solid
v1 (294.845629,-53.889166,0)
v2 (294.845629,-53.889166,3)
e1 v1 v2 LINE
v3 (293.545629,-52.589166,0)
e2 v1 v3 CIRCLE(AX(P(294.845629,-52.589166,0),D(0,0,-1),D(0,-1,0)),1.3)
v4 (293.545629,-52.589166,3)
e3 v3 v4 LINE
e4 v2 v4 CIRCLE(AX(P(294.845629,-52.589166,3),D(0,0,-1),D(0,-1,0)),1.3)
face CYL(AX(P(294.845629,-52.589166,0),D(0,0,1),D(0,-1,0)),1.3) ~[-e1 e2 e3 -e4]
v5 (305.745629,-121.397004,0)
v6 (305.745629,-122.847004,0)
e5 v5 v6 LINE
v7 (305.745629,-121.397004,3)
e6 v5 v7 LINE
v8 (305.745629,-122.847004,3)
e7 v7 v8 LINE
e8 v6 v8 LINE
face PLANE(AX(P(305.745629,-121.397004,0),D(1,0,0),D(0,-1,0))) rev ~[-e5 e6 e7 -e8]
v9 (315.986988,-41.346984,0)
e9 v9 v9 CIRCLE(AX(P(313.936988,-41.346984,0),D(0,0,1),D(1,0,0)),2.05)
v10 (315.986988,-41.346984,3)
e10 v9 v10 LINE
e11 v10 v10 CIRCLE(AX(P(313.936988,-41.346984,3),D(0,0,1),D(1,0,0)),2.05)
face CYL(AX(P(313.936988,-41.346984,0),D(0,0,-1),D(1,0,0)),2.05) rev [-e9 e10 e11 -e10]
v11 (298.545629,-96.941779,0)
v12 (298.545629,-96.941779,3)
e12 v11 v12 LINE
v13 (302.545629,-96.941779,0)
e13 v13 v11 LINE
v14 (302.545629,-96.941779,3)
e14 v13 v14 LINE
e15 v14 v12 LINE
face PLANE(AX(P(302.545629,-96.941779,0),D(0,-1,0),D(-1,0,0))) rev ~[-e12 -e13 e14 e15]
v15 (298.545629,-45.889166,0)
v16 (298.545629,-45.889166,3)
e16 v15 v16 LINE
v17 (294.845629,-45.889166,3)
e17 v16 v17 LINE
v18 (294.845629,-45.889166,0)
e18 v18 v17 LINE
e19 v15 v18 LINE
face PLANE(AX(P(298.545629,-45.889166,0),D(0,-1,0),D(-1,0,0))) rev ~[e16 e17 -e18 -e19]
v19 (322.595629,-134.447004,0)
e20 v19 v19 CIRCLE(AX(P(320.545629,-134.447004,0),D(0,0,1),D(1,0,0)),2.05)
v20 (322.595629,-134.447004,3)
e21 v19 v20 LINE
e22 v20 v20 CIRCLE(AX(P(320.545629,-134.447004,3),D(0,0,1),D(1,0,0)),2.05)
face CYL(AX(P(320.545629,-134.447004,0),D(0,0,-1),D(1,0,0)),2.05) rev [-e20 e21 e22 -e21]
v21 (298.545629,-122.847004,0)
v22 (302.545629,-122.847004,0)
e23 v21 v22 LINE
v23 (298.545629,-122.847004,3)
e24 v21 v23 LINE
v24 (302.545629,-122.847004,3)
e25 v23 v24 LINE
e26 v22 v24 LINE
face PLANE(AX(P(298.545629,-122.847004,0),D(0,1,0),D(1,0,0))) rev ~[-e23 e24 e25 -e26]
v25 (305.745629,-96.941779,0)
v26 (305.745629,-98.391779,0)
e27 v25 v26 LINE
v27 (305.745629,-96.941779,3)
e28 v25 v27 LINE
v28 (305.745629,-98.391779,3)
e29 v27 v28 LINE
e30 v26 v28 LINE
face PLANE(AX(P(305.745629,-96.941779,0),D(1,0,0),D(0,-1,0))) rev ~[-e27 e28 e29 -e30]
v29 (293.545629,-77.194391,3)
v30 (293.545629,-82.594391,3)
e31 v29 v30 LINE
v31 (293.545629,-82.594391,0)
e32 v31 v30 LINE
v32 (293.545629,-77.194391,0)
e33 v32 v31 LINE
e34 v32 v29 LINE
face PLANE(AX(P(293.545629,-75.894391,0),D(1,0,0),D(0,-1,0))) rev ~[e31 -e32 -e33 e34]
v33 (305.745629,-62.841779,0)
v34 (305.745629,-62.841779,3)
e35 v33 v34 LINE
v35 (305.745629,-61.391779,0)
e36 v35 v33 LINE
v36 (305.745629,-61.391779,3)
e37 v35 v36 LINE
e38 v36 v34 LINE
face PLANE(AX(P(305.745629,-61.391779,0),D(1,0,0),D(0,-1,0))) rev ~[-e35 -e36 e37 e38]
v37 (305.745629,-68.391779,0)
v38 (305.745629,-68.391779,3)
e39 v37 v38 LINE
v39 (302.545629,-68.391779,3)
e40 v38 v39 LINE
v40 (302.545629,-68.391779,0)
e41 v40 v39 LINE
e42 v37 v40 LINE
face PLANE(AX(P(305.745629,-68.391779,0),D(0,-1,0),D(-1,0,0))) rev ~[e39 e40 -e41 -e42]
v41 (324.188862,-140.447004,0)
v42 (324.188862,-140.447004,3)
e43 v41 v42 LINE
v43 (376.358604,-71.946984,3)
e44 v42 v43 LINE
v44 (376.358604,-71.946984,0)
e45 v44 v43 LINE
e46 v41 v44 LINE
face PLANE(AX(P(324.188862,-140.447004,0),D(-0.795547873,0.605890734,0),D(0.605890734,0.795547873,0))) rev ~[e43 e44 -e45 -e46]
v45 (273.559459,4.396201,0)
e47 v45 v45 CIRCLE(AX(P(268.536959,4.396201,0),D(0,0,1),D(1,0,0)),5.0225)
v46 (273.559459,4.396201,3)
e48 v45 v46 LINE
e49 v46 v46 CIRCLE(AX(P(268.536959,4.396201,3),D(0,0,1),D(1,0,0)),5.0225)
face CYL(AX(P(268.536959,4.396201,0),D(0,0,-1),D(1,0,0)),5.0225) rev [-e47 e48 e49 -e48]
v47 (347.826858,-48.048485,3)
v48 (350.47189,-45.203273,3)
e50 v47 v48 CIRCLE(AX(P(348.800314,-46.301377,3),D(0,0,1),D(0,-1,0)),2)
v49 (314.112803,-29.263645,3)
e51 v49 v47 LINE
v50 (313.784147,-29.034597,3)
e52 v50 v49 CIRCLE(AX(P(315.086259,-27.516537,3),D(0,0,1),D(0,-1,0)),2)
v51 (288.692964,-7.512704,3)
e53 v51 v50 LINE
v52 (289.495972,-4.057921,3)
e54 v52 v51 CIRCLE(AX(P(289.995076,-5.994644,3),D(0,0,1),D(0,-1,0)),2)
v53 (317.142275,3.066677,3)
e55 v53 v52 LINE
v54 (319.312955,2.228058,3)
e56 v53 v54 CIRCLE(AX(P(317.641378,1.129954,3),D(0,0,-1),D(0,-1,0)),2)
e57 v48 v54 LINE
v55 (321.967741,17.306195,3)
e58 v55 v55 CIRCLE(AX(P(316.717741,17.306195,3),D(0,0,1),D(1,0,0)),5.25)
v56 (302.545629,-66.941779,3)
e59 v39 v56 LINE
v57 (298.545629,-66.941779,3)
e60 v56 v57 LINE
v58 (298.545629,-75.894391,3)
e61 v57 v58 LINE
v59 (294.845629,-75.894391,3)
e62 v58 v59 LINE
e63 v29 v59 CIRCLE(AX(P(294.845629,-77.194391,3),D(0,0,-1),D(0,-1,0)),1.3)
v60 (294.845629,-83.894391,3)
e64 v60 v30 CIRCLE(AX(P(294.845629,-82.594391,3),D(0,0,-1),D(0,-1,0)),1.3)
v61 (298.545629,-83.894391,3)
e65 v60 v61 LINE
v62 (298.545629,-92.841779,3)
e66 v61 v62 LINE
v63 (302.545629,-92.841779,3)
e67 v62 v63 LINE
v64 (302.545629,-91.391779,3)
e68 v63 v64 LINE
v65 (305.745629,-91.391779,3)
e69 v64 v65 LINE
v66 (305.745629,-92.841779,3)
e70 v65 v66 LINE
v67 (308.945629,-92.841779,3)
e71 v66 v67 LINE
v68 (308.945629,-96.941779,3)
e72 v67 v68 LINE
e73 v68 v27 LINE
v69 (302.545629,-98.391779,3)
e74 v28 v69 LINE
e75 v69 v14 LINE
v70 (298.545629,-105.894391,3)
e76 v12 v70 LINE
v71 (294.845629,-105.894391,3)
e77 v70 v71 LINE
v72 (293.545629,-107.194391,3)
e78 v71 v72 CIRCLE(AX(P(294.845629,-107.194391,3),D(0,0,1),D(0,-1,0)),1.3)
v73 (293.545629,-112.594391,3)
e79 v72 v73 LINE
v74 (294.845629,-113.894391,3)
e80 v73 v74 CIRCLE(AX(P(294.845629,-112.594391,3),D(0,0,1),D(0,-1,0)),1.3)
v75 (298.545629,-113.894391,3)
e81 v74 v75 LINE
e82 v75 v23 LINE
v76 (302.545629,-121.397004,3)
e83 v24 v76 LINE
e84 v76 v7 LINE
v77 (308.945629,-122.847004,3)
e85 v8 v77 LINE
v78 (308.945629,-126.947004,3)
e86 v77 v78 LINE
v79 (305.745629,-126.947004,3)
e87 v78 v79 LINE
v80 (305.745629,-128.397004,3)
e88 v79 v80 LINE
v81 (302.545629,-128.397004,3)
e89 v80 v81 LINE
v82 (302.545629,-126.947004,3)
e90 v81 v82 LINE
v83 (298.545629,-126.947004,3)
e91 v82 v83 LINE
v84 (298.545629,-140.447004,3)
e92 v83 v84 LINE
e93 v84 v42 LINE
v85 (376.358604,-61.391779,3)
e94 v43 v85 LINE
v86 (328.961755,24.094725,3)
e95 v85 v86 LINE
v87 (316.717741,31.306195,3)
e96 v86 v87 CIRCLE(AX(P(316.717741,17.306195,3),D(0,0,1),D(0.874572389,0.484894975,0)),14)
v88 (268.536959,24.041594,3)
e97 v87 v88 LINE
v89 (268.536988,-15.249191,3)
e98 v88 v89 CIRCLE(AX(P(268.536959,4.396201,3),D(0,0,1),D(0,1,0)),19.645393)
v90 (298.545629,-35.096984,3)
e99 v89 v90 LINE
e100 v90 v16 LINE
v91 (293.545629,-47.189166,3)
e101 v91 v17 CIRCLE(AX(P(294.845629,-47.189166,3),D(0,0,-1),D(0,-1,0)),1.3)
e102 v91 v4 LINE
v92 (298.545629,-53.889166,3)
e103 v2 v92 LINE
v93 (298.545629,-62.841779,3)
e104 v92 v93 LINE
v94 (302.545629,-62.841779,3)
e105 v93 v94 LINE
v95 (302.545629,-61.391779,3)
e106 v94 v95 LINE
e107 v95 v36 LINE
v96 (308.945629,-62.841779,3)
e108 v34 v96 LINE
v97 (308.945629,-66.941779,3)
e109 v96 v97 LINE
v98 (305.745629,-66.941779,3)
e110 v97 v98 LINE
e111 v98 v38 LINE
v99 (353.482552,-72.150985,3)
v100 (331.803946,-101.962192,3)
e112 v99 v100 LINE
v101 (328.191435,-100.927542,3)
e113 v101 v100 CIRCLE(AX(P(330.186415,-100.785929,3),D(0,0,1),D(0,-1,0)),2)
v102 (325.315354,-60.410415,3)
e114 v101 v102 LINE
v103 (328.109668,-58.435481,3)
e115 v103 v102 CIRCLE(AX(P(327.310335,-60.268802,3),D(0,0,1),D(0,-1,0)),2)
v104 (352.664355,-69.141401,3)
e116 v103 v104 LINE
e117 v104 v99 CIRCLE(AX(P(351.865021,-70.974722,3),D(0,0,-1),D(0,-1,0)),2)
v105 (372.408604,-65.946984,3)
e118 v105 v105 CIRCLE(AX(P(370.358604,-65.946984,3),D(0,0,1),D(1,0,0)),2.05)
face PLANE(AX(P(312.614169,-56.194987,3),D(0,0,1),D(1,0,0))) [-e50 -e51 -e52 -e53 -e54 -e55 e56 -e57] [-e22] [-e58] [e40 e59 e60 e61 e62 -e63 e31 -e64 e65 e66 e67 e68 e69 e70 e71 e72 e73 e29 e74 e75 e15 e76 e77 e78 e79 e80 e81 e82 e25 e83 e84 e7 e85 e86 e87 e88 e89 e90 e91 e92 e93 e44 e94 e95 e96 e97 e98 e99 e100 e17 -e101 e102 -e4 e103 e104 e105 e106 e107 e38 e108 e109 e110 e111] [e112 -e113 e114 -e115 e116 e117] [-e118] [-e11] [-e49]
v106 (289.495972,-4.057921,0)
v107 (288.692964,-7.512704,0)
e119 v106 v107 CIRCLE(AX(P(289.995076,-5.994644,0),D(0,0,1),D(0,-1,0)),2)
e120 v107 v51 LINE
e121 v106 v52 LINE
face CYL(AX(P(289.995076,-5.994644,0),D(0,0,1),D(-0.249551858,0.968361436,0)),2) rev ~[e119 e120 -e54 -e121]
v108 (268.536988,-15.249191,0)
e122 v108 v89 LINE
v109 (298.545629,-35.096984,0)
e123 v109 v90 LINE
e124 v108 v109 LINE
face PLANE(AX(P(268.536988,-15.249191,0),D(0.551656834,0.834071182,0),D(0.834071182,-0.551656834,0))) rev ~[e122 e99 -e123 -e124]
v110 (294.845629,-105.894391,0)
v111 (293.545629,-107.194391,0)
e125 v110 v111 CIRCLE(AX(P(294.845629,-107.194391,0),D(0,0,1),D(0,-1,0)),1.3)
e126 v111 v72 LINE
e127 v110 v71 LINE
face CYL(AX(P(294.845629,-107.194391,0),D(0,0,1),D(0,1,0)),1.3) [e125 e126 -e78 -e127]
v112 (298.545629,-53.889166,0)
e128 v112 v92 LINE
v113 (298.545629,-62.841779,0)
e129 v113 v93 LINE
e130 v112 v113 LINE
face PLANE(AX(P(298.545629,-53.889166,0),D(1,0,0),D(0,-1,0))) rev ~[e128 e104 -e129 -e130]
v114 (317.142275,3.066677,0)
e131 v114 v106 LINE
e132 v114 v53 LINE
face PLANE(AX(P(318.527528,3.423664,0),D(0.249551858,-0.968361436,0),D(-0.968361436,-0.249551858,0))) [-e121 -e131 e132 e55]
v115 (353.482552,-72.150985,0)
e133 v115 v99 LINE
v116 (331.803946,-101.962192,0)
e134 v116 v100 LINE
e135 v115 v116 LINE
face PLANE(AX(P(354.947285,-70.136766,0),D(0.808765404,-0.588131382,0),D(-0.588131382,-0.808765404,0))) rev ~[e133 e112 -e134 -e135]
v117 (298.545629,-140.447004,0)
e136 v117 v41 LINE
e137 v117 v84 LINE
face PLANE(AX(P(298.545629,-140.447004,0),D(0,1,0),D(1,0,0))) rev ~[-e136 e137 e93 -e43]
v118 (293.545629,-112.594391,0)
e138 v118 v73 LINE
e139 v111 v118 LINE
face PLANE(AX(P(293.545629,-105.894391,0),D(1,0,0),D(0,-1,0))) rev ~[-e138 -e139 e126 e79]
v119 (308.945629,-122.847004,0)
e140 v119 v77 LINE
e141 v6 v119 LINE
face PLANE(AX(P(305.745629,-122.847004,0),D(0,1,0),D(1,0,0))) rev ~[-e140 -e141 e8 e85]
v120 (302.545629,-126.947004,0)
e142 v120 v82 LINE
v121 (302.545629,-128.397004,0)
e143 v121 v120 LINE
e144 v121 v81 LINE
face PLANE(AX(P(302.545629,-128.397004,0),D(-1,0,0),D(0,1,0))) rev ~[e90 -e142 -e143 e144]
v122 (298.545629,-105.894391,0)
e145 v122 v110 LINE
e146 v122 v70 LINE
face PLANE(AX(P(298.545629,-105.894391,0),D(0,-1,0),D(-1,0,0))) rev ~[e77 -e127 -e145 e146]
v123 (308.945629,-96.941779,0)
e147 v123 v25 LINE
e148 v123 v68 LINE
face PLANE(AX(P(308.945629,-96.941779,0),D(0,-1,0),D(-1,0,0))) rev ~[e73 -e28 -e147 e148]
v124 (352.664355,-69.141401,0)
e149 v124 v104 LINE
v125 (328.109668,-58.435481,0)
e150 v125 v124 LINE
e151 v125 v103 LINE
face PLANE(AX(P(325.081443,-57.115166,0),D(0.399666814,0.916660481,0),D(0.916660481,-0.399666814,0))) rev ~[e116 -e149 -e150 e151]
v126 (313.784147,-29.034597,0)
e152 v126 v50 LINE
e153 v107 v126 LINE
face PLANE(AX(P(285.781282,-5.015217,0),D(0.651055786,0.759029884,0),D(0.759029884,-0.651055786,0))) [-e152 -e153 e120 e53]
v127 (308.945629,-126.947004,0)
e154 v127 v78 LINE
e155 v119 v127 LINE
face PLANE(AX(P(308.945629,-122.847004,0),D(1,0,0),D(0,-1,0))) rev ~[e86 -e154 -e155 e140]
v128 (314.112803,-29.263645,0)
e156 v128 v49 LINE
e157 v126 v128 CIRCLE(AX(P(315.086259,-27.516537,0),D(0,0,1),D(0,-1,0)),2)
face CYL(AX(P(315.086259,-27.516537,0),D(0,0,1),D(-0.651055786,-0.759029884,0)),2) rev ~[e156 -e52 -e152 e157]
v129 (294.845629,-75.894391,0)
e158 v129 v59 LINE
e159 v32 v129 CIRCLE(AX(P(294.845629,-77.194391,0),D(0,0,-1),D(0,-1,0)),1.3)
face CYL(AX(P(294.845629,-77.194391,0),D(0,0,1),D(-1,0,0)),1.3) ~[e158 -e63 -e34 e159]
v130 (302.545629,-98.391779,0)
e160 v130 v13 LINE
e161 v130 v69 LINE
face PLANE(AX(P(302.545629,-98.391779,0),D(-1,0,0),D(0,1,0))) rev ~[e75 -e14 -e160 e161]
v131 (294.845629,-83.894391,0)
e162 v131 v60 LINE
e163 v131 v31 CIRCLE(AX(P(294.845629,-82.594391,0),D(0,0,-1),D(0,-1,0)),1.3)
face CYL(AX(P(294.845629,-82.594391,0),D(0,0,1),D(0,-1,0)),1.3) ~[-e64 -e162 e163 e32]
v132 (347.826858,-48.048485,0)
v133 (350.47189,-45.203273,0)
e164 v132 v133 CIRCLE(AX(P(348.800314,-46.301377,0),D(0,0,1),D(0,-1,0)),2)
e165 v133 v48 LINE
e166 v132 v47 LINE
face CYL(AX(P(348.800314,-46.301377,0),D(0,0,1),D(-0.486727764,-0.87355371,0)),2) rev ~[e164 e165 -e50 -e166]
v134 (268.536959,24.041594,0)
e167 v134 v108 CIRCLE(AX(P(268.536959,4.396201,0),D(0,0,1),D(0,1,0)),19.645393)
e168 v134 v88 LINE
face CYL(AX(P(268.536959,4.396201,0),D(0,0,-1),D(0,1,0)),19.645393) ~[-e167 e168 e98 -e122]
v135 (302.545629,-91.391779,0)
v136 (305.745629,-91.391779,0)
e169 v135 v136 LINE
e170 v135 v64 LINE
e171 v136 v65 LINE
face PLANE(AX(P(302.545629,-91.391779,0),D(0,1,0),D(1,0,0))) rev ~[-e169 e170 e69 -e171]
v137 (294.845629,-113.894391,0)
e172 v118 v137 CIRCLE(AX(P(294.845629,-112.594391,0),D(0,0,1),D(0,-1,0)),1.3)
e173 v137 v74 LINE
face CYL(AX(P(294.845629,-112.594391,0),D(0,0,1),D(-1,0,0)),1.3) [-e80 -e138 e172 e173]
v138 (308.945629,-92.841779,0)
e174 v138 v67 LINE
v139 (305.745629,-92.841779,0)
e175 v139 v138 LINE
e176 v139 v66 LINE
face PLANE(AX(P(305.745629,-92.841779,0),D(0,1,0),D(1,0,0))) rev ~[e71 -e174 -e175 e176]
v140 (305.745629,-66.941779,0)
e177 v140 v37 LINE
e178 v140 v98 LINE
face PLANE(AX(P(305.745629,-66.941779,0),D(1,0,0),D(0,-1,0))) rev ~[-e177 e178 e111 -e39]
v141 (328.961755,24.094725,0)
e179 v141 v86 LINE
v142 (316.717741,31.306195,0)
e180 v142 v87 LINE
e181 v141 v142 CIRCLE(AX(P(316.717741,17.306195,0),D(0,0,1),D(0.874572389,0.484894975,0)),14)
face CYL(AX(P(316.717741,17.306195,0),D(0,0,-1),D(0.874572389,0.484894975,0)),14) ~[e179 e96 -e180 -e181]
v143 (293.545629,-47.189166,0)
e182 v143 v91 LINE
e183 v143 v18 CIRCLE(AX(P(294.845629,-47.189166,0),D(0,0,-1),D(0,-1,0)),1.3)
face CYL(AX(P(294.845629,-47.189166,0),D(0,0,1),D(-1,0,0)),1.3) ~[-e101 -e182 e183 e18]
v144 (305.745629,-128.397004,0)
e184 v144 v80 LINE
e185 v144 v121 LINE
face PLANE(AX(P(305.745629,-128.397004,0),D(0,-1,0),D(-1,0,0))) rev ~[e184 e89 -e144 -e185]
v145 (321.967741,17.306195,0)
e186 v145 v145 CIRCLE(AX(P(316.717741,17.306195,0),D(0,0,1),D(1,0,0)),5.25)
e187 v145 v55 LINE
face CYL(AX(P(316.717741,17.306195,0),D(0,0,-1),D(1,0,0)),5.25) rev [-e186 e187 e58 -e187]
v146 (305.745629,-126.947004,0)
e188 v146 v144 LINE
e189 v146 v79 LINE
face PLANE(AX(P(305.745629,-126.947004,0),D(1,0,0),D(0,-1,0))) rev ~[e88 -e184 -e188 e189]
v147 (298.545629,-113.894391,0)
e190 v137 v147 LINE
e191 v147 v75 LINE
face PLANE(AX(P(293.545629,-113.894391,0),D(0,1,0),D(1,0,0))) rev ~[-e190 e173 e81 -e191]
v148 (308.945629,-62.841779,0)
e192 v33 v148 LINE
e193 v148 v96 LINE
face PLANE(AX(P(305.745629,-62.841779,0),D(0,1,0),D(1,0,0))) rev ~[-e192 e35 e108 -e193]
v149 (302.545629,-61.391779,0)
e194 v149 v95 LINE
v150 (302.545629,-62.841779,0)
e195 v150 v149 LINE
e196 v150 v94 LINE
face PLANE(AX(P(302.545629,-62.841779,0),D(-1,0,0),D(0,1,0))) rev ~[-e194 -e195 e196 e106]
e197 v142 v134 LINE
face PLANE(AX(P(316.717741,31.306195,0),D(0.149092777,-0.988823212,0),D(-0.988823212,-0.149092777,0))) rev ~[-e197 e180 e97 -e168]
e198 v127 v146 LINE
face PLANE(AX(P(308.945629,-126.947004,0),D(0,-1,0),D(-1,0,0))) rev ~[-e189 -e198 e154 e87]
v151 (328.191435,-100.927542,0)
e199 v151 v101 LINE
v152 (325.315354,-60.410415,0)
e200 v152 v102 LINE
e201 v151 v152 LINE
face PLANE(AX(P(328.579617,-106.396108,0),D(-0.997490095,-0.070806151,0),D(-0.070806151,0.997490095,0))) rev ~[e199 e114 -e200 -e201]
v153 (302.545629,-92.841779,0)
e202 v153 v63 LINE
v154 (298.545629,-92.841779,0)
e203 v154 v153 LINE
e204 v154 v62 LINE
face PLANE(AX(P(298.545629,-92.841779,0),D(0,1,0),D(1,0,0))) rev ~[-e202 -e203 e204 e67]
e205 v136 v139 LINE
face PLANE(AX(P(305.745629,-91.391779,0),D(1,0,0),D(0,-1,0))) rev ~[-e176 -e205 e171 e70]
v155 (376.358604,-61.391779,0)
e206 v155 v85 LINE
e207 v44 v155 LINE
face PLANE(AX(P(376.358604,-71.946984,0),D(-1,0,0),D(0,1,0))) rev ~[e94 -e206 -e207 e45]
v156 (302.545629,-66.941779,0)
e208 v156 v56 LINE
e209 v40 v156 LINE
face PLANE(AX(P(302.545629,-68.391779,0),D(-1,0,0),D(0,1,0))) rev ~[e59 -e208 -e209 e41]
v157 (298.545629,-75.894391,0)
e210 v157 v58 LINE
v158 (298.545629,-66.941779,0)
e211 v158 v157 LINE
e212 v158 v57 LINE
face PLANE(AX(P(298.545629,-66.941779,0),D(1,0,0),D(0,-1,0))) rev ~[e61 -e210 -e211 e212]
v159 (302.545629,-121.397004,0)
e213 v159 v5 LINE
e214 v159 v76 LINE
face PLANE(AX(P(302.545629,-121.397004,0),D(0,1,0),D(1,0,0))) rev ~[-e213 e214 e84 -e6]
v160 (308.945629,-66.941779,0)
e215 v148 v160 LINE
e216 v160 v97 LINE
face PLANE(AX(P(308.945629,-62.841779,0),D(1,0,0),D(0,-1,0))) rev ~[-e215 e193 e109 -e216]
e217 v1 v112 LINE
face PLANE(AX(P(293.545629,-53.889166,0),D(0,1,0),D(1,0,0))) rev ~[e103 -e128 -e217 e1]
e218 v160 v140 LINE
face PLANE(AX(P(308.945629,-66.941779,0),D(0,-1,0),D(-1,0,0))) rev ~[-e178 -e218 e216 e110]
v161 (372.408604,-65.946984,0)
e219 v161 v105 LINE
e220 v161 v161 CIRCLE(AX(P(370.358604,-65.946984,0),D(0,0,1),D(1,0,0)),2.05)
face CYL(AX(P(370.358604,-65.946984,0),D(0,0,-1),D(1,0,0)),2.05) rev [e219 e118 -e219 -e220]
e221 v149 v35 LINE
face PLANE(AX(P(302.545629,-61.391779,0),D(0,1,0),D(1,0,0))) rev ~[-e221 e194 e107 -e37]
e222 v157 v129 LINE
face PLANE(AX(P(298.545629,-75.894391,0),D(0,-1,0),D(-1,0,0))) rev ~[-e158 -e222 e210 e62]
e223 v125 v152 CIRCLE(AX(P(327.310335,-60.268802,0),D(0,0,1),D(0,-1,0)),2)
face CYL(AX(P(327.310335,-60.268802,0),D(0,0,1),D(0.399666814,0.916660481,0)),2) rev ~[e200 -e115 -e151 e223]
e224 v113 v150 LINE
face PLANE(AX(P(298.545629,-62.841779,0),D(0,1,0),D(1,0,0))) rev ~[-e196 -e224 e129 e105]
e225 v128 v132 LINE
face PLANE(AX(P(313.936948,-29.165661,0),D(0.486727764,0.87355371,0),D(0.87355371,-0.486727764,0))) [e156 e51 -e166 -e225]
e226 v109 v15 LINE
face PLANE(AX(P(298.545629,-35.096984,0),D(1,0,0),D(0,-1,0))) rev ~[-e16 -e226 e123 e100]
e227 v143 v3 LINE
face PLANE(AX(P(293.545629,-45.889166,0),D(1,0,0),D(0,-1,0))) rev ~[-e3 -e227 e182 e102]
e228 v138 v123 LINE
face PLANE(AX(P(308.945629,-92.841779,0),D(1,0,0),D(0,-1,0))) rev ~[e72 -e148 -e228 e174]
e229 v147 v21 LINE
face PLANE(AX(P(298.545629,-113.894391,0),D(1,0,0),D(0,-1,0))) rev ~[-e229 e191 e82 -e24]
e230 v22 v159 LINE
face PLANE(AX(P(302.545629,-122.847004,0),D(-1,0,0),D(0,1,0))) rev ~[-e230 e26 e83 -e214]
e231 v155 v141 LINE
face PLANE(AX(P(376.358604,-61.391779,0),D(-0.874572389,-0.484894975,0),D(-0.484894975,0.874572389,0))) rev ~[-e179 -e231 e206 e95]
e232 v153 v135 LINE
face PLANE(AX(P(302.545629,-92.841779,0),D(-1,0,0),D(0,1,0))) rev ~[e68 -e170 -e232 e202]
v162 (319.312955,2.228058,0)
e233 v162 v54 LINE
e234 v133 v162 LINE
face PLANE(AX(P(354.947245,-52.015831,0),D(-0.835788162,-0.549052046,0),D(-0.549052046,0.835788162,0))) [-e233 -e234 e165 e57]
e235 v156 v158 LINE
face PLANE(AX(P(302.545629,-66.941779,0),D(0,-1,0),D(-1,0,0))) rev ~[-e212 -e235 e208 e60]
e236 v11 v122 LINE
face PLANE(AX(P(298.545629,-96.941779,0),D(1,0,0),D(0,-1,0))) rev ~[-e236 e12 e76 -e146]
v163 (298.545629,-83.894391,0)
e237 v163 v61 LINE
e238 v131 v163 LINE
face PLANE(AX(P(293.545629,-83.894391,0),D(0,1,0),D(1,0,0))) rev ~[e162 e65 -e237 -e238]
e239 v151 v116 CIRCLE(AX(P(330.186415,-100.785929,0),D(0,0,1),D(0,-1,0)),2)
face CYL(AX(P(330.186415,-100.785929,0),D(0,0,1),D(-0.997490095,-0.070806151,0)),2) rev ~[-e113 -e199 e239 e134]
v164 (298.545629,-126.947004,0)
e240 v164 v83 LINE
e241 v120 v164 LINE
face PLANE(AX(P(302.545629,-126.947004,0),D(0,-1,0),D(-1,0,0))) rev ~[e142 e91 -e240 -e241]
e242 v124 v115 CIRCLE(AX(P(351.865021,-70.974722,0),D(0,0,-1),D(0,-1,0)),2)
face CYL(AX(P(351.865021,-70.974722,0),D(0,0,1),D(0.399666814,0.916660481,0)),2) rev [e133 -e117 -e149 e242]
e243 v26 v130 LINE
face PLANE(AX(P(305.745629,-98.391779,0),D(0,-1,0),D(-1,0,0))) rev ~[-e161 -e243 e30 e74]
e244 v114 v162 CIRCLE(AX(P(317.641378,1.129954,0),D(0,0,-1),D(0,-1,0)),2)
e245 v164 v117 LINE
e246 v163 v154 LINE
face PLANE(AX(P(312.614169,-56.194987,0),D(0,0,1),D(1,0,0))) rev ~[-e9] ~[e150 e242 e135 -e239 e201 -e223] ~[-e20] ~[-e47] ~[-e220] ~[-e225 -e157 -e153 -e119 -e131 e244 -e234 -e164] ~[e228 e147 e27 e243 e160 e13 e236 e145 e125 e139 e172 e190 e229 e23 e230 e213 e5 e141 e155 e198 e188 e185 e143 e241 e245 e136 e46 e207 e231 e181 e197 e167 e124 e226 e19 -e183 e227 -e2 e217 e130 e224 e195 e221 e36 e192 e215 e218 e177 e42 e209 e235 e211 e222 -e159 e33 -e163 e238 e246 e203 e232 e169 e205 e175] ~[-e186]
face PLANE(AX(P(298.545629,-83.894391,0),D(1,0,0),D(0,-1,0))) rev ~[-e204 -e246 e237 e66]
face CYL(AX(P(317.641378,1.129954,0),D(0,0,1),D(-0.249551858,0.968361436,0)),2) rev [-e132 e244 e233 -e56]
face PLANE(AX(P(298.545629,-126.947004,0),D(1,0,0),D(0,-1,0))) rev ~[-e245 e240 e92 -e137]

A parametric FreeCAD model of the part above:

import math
import FreeCAD as App
import Part
import Sketcher
Q = App.Units.Quantity


def edges_at(feature, points):
    """Names of the edges that pass closest to the given points."""
    edges = feature.Shape.Edges
    near = lambda p: min(range(len(edges)), key=lambda i: edges[i].distToShape(Part.Vertex(*p))[0])
    return sorted({f"Edge{near(p) + 1}" for p in points})

doc = App.newDocument("Part")
body = doc.addObject("PartDesign::Body", "Body")

# Sketch on XY plane
sketch1 = body.newObject("Sketcher::SketchObject", "Sketch")
sketch1.AttachmentSupport = (doc.getObject("XY_Plane"), [""])
sketch1.MapMode = "FlatFace"
sketch1.addGeometry(Part.LineSegment(App.Vector(298.5, -83.9, 0), App.Vector(298.5, -92.8, 0)), False)
sketch1.addGeometry(Part.LineSegment(App.Vector(298.5, -92.8, 0), App.Vector(302.5, -92.8, 0)), False)
sketch1.addGeometry(Part.LineSegment(App.Vector(302.5, -92.8, 0), App.Vector(302.5, -91.4, 0)), False)
sketch1.addGeometry(Part.LineSegment(App.Vector(302.5, -91.4, 0), App.Vector(305.7, -91.4, 0)), False)
sketch1.addGeometry(Part.LineSegment(App.Vector(305.7, -91.4, 0), App.Vector(305.7, -92.8, 0)), False)
sketch1.addGeometry(Part.LineSegment(App.Vector(305.7, -92.8, 0), App.Vector(308.9, -92.8, 0)), False)
sketch1.addGeometry(Part.LineSegment(App.Vector(308.9, -92.8, 0), App.Vector(308.9, -96.9, 0)), False)
sketch1.addGeometry(Part.LineSegment(App.Vector(308.9, -96.9, 0), App.Vector(305.7, -96.9, 0)), False)
sketch1.addGeometry(Part.LineSegment(App.Vector(305.7, -96.9, 0), App.Vector(305.7, -98.4, 0)), False)
sketch1.addGeometry(Part.LineSegment(App.Vector(305.7, -98.4, 0), App.Vector(302.5, -98.4, 0)), False)
sketch1.addGeometry(Part.LineSegment(App.Vector(302.5, -98.4, 0), App.Vector(302.5, -96.9, 0)), False)
sketch1.addGeometry(Part.LineSegment(App.Vector(302.5, -96.9, 0), App.Vector(298.5, -96.9, 0)), False)
sketch1.addGeometry(Part.LineSegment(App.Vector(298.5, -96.9, 0), App.Vector(298.5, -105.9, 0)), False)
sketch1.addGeometry(Part.LineSegment(App.Vector(298.5, -105.9, 0), App.Vector(293.5, -105.9, 0)), False)
sketch1.addGeometry(Part.LineSegment(App.Vector(293.5, -105.9, 0), App.Vector(293.5, -113.9, 0)), False)
sketch1.addGeometry(Part.LineSegment(App.Vector(293.5, -113.9, 0), App.Vector(298.5, -113.9, 0)), False)
sketch1.addGeometry(Part.LineSegment(App.Vector(298.5, -113.9, 0), App.Vector(298.5, -122.8, 0)), False)
sketch1.addGeometry(Part.LineSegment(App.Vector(298.5, -122.8, 0), App.Vector(302.5, -122.8, 0)), False)
sketch1.addGeometry(Part.LineSegment(App.Vector(302.5, -122.8, 0), App.Vector(302.5, -121.4, 0)), False)
sketch1.addGeometry(Part.LineSegment(App.Vector(302.5, -121.4, 0), App.Vector(305.7, -121.4, 0)), False)
sketch1.addGeometry(Part.LineSegment(App.Vector(305.7, -121.4, 0), App.Vector(305.7, -122.8, 0)), False)
sketch1.addGeometry(Part.LineSegment(App.Vector(305.7, -122.8, 0), App.Vector(308.9, -122.8, 0)), False)
sketch1.addGeometry(Part.LineSegment(App.Vector(308.9, -122.8, 0), App.Vector(308.9, -126.9, 0)), False)
sketch1.addGeometry(Part.LineSegment(App.Vector(308.9, -126.9, 0), App.Vector(305.7, -126.9, 0)), False)
sketch1.addGeometry(Part.LineSegment(App.Vector(305.7, -126.9, 0), App.Vector(305.7, -128.4, 0)), False)
sketch1.addGeometry(Part.LineSegment(App.Vector(305.7, -128.4, 0), App.Vector(302.5, -128.4, 0)), False)
sketch1.addGeometry(Part.LineSegment(App.Vector(302.5, -128.4, 0), App.Vector(302.5, -126.9, 0)), False)
sketch1.addGeometry(Part.LineSegment(App.Vector(302.5, -126.9, 0), App.Vector(298.5, -126.9, 0)), False)
sketch1.addGeometry(Part.LineSegment(App.Vector(298.5, -126.9, 0), App.Vector(298.5, -140.4, 0)), False)
sketch1.addGeometry(Part.LineSegment(App.Vector(298.5, -140.4, 0), App.Vector(324.2, -140.4, 0)), False)
sketch1.addGeometry(Part.LineSegment(App.Vector(324.2, -140.4, 0), App.Vector(376.4, -71.9, 0)), False)
sketch1.addGeometry(Part.LineSegment(App.Vector(376.4, -71.9, 0), App.Vector(376.4, -61.4, 0)), False)
sketch1.addGeometry(Part.LineSegment(App.Vector(376.4, -61.4, 0), App.Vector(329, 24.1, 0)), False)
sketch1.addGeometry(Part.ArcOfCircle(Part.Circle(App.Vector(316.7, 17.3, 0), App.Vector(0, 0, 1), 14), math.radians(29), math.radians(90)), False)
sketch1.addGeometry(Part.LineSegment(App.Vector(316.7, 31.3, 0), App.Vector(268.5, 24, 0)), False)
sketch1.addGeometry(Part.ArcOfCircle(Part.Circle(App.Vector(268.5, 4.4, 0), App.Vector(0, 0, 1), 19.6), math.radians(90), math.radians(270)), False)
sketch1.addGeometry(Part.LineSegment(App.Vector(268.5, -15.2, 0), App.Vector(298.5, -35.1, 0)), False)
sketch1.addGeometry(Part.LineSegment(App.Vector(298.5, -35.1, 0), App.Vector(298.5, -45.9, 0)), False)
sketch1.addGeometry(Part.LineSegment(App.Vector(298.5, -45.9, 0), App.Vector(293.5, -45.9, 0)), False)
sketch1.addGeometry(Part.LineSegment(App.Vector(293.5, -45.9, 0), App.Vector(293.5, -53.9, 0)), False)
sketch1.addGeometry(Part.LineSegment(App.Vector(293.5, -53.9, 0), App.Vector(298.5, -53.9, 0)), False)
sketch1.addGeometry(Part.LineSegment(App.Vector(298.5, -53.9, 0), App.Vector(298.5, -62.8, 0)), False)
sketch1.addGeometry(Part.LineSegment(App.Vector(298.5, -62.8, 0), App.Vector(302.5, -62.8, 0)), False)
sketch1.addGeometry(Part.LineSegment(App.Vector(302.5, -62.8, 0), App.Vector(302.5, -61.4, 0)), False)
sketch1.addGeometry(Part.LineSegment(App.Vector(302.5, -61.4, 0), App.Vector(305.7, -61.4, 0)), False)
sketch1.addGeometry(Part.LineSegment(App.Vector(305.7, -61.4, 0), App.Vector(305.7, -62.8, 0)), False)
sketch1.addGeometry(Part.LineSegment(App.Vector(305.7, -62.8, 0), App.Vector(308.9, -62.8, 0)), False)
sketch1.addGeometry(Part.LineSegment(App.Vector(308.9, -62.8, 0), App.Vector(308.9, -66.9, 0)), False)
sketch1.addGeometry(Part.LineSegment(App.Vector(308.9, -66.9, 0), App.Vector(305.7, -66.9, 0)), False)
sketch1.addGeometry(Part.LineSegment(App.Vector(305.7, -66.9, 0), App.Vector(305.7, -68.4, 0)), False)
sketch1.addGeometry(Part.LineSegment(App.Vector(305.7, -68.4, 0), App.Vector(302.5, -68.4, 0)), False)
sketch1.addGeometry(Part.LineSegment(App.Vector(302.5, -68.4, 0), App.Vector(302.5, -66.9, 0)), False)
sketch1.addGeometry(Part.LineSegment(App.Vector(302.5, -66.9, 0), App.Vector(298.5, -66.9, 0)), False)
sketch1.addGeometry(Part.LineSegment(App.Vector(298.5, -66.9, 0), App.Vector(298.5, -75.9, 0)), False)
sketch1.addGeometry(Part.LineSegment(App.Vector(298.5, -75.9, 0), App.Vector(293.5, -75.9, 0)), False)
sketch1.addGeometry(Part.LineSegment(App.Vector(293.5, -75.9, 0), App.Vector(293.5, -83.9, 0)), False)
sketch1.addGeometry(Part.LineSegment(App.Vector(293.5, -83.9, 0), App.Vector(298.5, -83.9, 0)), False)
sketch1.addGeometry(Part.Circle(App.Vector(320.5, -134.4, 0), App.Vector(0, 0, 1), 2), False)
sketch1.addGeometry(Part.LineSegment(App.Vector(325.1, -57.1, 0), App.Vector(354.9, -70.1, 0)), False)
sketch1.addGeometry(Part.LineSegment(App.Vector(354.9, -70.1, 0), App.Vector(328.6, -106.4, 0)), False)
sketch1.addGeometry(Part.LineSegment(App.Vector(328.6, -106.4, 0), App.Vector(325.1, -57.1, 0)), False)
sketch1.addGeometry(Part.Circle(App.Vector(370.4, -65.9, 0), App.Vector(0, 0, 1), 2), False)
sketch1.addGeometry(Part.Circle(App.Vector(313.9, -41.3, 0), App.Vector(0, 0, 1), 2), False)
sketch1.addGeometry(Part.Circle(App.Vector(268.5, 4.4, 0), App.Vector(0, 0, 1), 5), False)
sketch1.addGeometry(Part.Circle(App.Vector(316.7, 17.3, 0), App.Vector(0, 0, 1), 5.2), False)
sketch1.addGeometry(Part.LineSegment(App.Vector(285.8, -5, 0), App.Vector(318.5, 3.4, 0)), False)
sketch1.addGeometry(Part.LineSegment(App.Vector(318.5, 3.4, 0), App.Vector(354.9, -52, 0)), False)
sketch1.addGeometry(Part.LineSegment(App.Vector(354.9, -52, 0), App.Vector(313.9, -29.2, 0)), False)
sketch1.addGeometry(Part.LineSegment(App.Vector(313.9, -29.2, 0), App.Vector(285.8, -5, 0)), False)
sketch1.addConstraint(Sketcher.Constraint("Coincident", 0, 2, 1, 1))
sketch1.addConstraint(Sketcher.Constraint("Coincident", 1, 2, 2, 1))
sketch1.addConstraint(Sketcher.Constraint("Coincident", 2, 2, 3, 1))
sketch1.addConstraint(Sketcher.Constraint("Coincident", 3, 2, 4, 1))
sketch1.addConstraint(Sketcher.Constraint("Coincident", 4, 2, 5, 1))
sketch1.addConstraint(Sketcher.Constraint("Coincident", 5, 2, 6, 1))
sketch1.addConstraint(Sketcher.Constraint("Coincident", 6, 2, 7, 1))
sketch1.addConstraint(Sketcher.Constraint("Coincident", 7, 2, 8, 1))
sketch1.addConstraint(Sketcher.Constraint("Coincident", 8, 2, 9, 1))
sketch1.addConstraint(Sketcher.Constraint("Coincident", 9, 2, 10, 1))
sketch1.addConstraint(Sketcher.Constraint("Coincident", 10, 2, 11, 1))
sketch1.addConstraint(Sketcher.Constraint("Coincident", 11, 2, 12, 1))
sketch1.addConstraint(Sketcher.Constraint("Coincident", 12, 2, 13, 1))
sketch1.addConstraint(Sketcher.Constraint("Coincident", 13, 2, 14, 1))
sketch1.addConstraint(Sketcher.Constraint("Coincident", 14, 2, 15, 1))
sketch1.addConstraint(Sketcher.Constraint("Coincident", 15, 2, 16, 1))
sketch1.addConstraint(Sketcher.Constraint("Coincident", 16, 2, 17, 1))
sketch1.addConstraint(Sketcher.Constraint("Coincident", 17, 2, 18, 1))
sketch1.addConstraint(Sketcher.Constraint("Coincident", 18, 2, 19, 1))
sketch1.addConstraint(Sketcher.Constraint("Coincident", 19, 2, 20, 1))
sketch1.addConstraint(Sketcher.Constraint("Coincident", 20, 2, 21, 1))
sketch1.addConstraint(Sketcher.Constraint("Coincident", 21, 2, 22, 1))
sketch1.addConstraint(Sketcher.Constraint("Coincident", 22, 2, 23, 1))
sketch1.addConstraint(Sketcher.Constraint("Coincident", 23, 2, 24, 1))
sketch1.addConstraint(Sketcher.Constraint("Coincident", 24, 2, 25, 1))
sketch1.addConstraint(Sketcher.Constraint("Coincident", 25, 2, 26, 1))
sketch1.addConstraint(Sketcher.Constraint("Coincident", 26, 2, 27, 1))
sketch1.addConstraint(Sketcher.Constraint("Coincident", 27, 2, 28, 1))
sketch1.addConstraint(Sketcher.Constraint("Coincident", 28, 2, 29, 1))
sketch1.addConstraint(Sketcher.Constraint("Coincident", 29, 2, 30, 1))
sketch1.addConstraint(Sketcher.Constraint("Coincident", 30, 2, 31, 1))
sketch1.addConstraint(Sketcher.Constraint("Coincident", 31, 2, 32, 1))
sketch1.addConstraint(Sketcher.Constraint("Tangent", 32, 2, 33, 1))
sketch1.addConstraint(Sketcher.Constraint("Coincident", 33, 2, 34, 1))
sketch1.addConstraint(Sketcher.Constraint("Coincident", 34, 2, 35, 1))
sketch1.addConstraint(Sketcher.Constraint("Coincident", 35, 2, 36, 1))
sketch1.addConstraint(Sketcher.Constraint("Coincident", 36, 2, 37, 1))
sketch1.addConstraint(Sketcher.Constraint("Coincident", 37, 2, 38, 1))
sketch1.addConstraint(Sketcher.Constraint("Coincident", 38, 2, 39, 1))
sketch1.addConstraint(Sketcher.Constraint("Coincident", 39, 2, 40, 1))
sketch1.addConstraint(Sketcher.Constraint("Coincident", 40, 2, 41, 1))
sketch1.addConstraint(Sketcher.Constraint("Coincident", 41, 2, 42, 1))
sketch1.addConstraint(Sketcher.Constraint("Coincident", 42, 2, 43, 1))
sketch1.addConstraint(Sketcher.Constraint("Coincident", 43, 2, 44, 1))
sketch1.addConstraint(Sketcher.Constraint("Coincident", 44, 2, 45, 1))
sketch1.addConstraint(Sketcher.Constraint("Coincident", 45, 2, 46, 1))
sketch1.addConstraint(Sketcher.Constraint("Coincident", 46, 2, 47, 1))
sketch1.addConstraint(Sketcher.Constraint("Coincident", 47, 2, 48, 1))
sketch1.addConstraint(Sketcher.Constraint("Coincident", 48, 2, 49, 1))
sketch1.addConstraint(Sketcher.Constraint("Coincident", 49, 2, 50, 1))
sketch1.addConstraint(Sketcher.Constraint("Coincident", 50, 2, 51, 1))
sketch1.addConstraint(Sketcher.Constraint("Coincident", 51, 2, 52, 1))
sketch1.addConstraint(Sketcher.Constraint("Coincident", 52, 2, 53, 1))
sketch1.addConstraint(Sketcher.Constraint("Coincident", 53, 2, 54, 1))
sketch1.addConstraint(Sketcher.Constraint("Coincident", 54, 2, 55, 1))
sketch1.addConstraint(Sketcher.Constraint("Coincident", 55, 2, 56, 1))
sketch1.addConstraint(Sketcher.Constraint("Coincident", 56, 2, 0, 1))
sketch1.addConstraint(Sketcher.Constraint("Coincident", 58, 2, 59, 1))
sketch1.addConstraint(Sketcher.Constraint("Coincident", 59, 2, 60, 1))
sketch1.addConstraint(Sketcher.Constraint("Coincident", 60, 2, 58, 1))
sketch1.addConstraint(Sketcher.Constraint("Coincident", 65, 2, 66, 1))
sketch1.addConstraint(Sketcher.Constraint("Coincident", 66, 2, 67, 1))
sketch1.addConstraint(Sketcher.Constraint("Coincident", 67, 2, 68, 1))
sketch1.addConstraint(Sketcher.Constraint("Coincident", 68, 2, 65, 1))
sketch1.addConstraint(Sketcher.Constraint("Vertical", 0))
sketch1.addConstraint(Sketcher.Constraint("Horizontal", 1))
sketch1.addConstraint(Sketcher.Constraint("Vertical", 2))
sketch1.addConstraint(Sketcher.Constraint("Horizontal", 3))
sketch1.addConstraint(Sketcher.Constraint("Vertical", 4))
sketch1.addConstraint(Sketcher.Constraint("Horizontal", 5))
sketch1.addConstraint(Sketcher.Constraint("Vertical", 6))
sketch1.addConstraint(Sketcher.Constraint("Horizontal", 7))
sketch1.addConstraint(Sketcher.Constraint("Vertical", 8))
sketch1.addConstraint(Sketcher.Constraint("Horizontal", 9))
sketch1.addConstraint(Sketcher.Constraint("Vertical", 10))
sketch1.addConstraint(Sketcher.Constraint("Horizontal", 11))
sketch1.addConstraint(Sketcher.Constraint("Vertical", 12))
sketch1.addConstraint(Sketcher.Constraint("Horizontal", 13))
sketch1.addConstraint(Sketcher.Constraint("Vertical", 14))
sketch1.addConstraint(Sketcher.Constraint("Horizontal", 15))
sketch1.addConstraint(Sketcher.Constraint("Vertical", 16))
sketch1.addConstraint(Sketcher.Constraint("Horizontal", 17))
sketch1.addConstraint(Sketcher.Constraint("Vertical", 18))
sketch1.addConstraint(Sketcher.Constraint("Horizontal", 19))
sketch1.addConstraint(Sketcher.Constraint("Vertical", 20))
sketch1.addConstraint(Sketcher.Constraint("Horizontal", 21))
sketch1.addConstraint(Sketcher.Constraint("Vertical", 22))
sketch1.addConstraint(Sketcher.Constraint("Horizontal", 23))
sketch1.addConstraint(Sketcher.Constraint("Vertical", 24))
sketch1.addConstraint(Sketcher.Constraint("Horizontal", 25))
sketch1.addConstraint(Sketcher.Constraint("Vertical", 26))
sketch1.addConstraint(Sketcher.Constraint("Horizontal", 27))
sketch1.addConstraint(Sketcher.Constraint("Vertical", 28))
sketch1.addConstraint(Sketcher.Constraint("Horizontal", 29))
sketch1.addConstraint(Sketcher.Constraint("Vertical", 31))
sketch1.addConstraint(Sketcher.Constraint("Vertical", 37))
sketch1.addConstraint(Sketcher.Constraint("Horizontal", 38))
sketch1.addConstraint(Sketcher.Constraint("Vertical", 39))
sketch1.addConstraint(Sketcher.Constraint("Horizontal", 40))
sketch1.addConstraint(Sketcher.Constraint("Vertical", 41))
sketch1.addConstraint(Sketcher.Constraint("Horizontal", 42))
sketch1.addConstraint(Sketcher.Constraint("Vertical", 43))
sketch1.addConstraint(Sketcher.Constraint("Horizontal", 44))
sketch1.addConstraint(Sketcher.Constraint("Vertical", 45))
sketch1.addConstraint(Sketcher.Constraint("Horizontal", 46))
sketch1.addConstraint(Sketcher.Constraint("Vertical", 47))
sketch1.addConstraint(Sketcher.Constraint("Horizontal", 48))
sketch1.addConstraint(Sketcher.Constraint("Vertical", 49))
sketch1.addConstraint(Sketcher.Constraint("Horizontal", 50))
sketch1.addConstraint(Sketcher.Constraint("Vertical", 51))
sketch1.addConstraint(Sketcher.Constraint("Horizontal", 52))
sketch1.addConstraint(Sketcher.Constraint("Vertical", 53))
sketch1.addConstraint(Sketcher.Constraint("Horizontal", 54))
sketch1.addConstraint(Sketcher.Constraint("Vertical", 55))
sketch1.addConstraint(Sketcher.Constraint("Horizontal", 56))
sketch1.addConstraint(Sketcher.Constraint("Coincident", 63, 3, 35, 3))
sketch1.addConstraint(Sketcher.Constraint("Coincident", 64, 3, 33, 3))
sketch1.addConstraint(Sketcher.Constraint("Equal", 57, 61))
sketch1.addConstraint(Sketcher.Constraint("Equal", 61, 62))
sketch1.addConstraint(Sketcher.Constraint("Horizontal", 1, 2, 4, 2))
sketch1.addConstraint(Sketcher.Constraint("Horizontal", 7, 2, 10, 2))
sketch1.addConstraint(Sketcher.Constraint("Horizontal", 17, 2, 20, 2))
sketch1.addConstraint(Sketcher.Constraint("Horizontal", 23, 2, 26, 2))
sketch1.addConstraint(Sketcher.Constraint("Horizontal", 31, 2, 43, 2))
sketch1.addConstraint(Sketcher.Constraint("Horizontal", 42, 2, 45, 2))
sketch1.addConstraint(Sketcher.Constraint("Horizontal", 48, 2, 51, 2))
sketch1.addConstraint(Sketcher.Constraint("Vertical", 4, 2, 7, 2))
sketch1.addConstraint(Sketcher.Constraint("Vertical", 2, 2, 9, 2))
sketch1.addConstraint(Sketcher.Constraint("Vertical", 0, 2, 11, 2))
sketch1.addConstraint(Sketcher.Constraint("Vertical", 12, 2, 15, 2))
sketch1.addConstraint(Sketcher.Constraint("Vertical", 10, 2, 17, 2))
sketch1.addConstraint(Sketcher.Constraint("Vertical", 8, 2, 19, 2))
sketch1.addConstraint(Sketcher.Constraint("Vertical", 6, 2, 21, 2))
sketch1.addConstraint(Sketcher.Constraint("Vertical", 20, 2, 23, 2))
sketch1.addConstraint(Sketcher.Constraint("Vertical", 18, 2, 25, 2))
sketch1.addConstraint(Sketcher.Constraint("Vertical", 16, 2, 27, 2))
sketch1.addConstraint(Sketcher.Constraint("Vertical", 64, 3, 33, 2))
sketch1.addConstraint(Sketcher.Constraint("Vertical", 63, 3, 34, 2))
sketch1.addConstraint(Sketcher.Constraint("Vertical", 28, 2, 36, 2))
sketch1.addConstraint(Sketcher.Constraint("Vertical", 14, 2, 38, 2))
sketch1.addConstraint(Sketcher.Constraint("Vertical", 37, 2, 40, 2))
sketch1.addConstraint(Sketcher.Constraint("Vertical", 26, 2, 42, 2))
sketch1.addConstraint(Sketcher.Constraint("Vertical", 24, 2, 44, 2))
sketch1.addConstraint(Sketcher.Constraint("Vertical", 22, 2, 46, 2))
sketch1.addConstraint(Sketcher.Constraint("Vertical", 45, 2, 48, 2))
sketch1.addConstraint(Sketcher.Constraint("Vertical", 43, 2, 50, 2))
sketch1.addConstraint(Sketcher.Constraint("Vertical", 41, 2, 52, 2))
sketch1.addConstraint(Sketcher.Constraint("Vertical", 39, 2, 54, 2))
sketch1.addConstraint(Sketcher.Constraint("Equal", 3, 5))
sketch1.addConstraint(Sketcher.Constraint("Equal", 4, 8))
sketch1.addConstraint(Sketcher.Constraint("Equal", 12, 16))
sketch1.addConstraint(Sketcher.Constraint("Equal", 10, 18))
sketch1.addConstraint(Sketcher.Constraint("Equal", 6, 22))
sketch1.addConstraint(Sketcher.Constraint("Equal", 20, 24))
sketch1.addConstraint(Sketcher.Constraint("Equal", 14, 39))
sketch1.addConstraint(Sketcher.Constraint("Equal", 16, 41))
sketch1.addConstraint(Sketcher.Constraint("Equal", 26, 43))
sketch1.addConstraint(Sketcher.Constraint("Equal", 22, 47))
sketch1.addConstraint(Sketcher.Constraint("Equal", 45, 49))
sketch1.addConstraint(Sketcher.Constraint("Equal", 41, 53))
sketch1.addConstraint(Sketcher.Constraint("Equal", 39, 55))
sketch1.addConstraint(Sketcher.Constraint("Radius", 33, Q("14 mm")))
sketch1.addConstraint(Sketcher.Constraint("Diameter", 57, Q("4.1 mm")))
sketch1.addConstraint(Sketcher.Constraint("Diameter", 64, Q("10.5 mm")))
sketch1.addConstraint(Sketcher.Constraint("DistanceX", 1, 1, 1, 2, Q("4 mm")))
sketch1.addConstraint(Sketcher.Constraint("DistanceX", 13, 2, 13, 1, Q("5 mm")))
sketch1.addConstraint(Sketcher.Constraint("DistanceY", 14, 2, 14, 1, Q("8 mm")))
sketch1.addConstraint(Sketcher.Constraint("Diameter", 63, Q("10.045 mm")))
sketch1.addConstraint(Sketcher.Constraint("DistanceX", 3, 1, 3, 2, Q("3.2 mm")))
sketch1.addConstraint(Sketcher.Constraint("DistanceY", 6, 2, 6, 1, Q("4.1 mm")))
sketch1.addConstraint(Sketcher.Constraint("DistanceY", 28, 2, 28, 1, Q("13.5 mm")))
sketch1.addConstraint(Sketcher.Constraint("DistanceY", 2, 1, 2, 2, Q("1.45 mm")))
sketch1.addConstraint(Sketcher.Constraint("Radius", 35, Q("19.645393 mm")))
sketch1.addConstraint(Sketcher.Constraint("DistanceY", 37, 2, 37, 1, Q("10.792182 mm")))
sketch1.addConstraint(Sketcher.Constraint("DistanceY", -1, 1, 35, 3, Q("4.396201 mm")))
sketch1.addConstraint(Sketcher.Constraint("Distance", 30, Q("86.104208 mm")))
sketch1.addConstraint(Sketcher.Constraint("Distance", 32, Q("97.74663 mm")))
sketch1.addConstraint(Sketcher.Constraint("Distance", 65, Q("33.816141 mm")))
sketch1.addConstraint(Sketcher.Constraint("Distance", 67, Q("46.946509 mm")))
sketch1.addConstraint(Sketcher.Constraint("Distance", 68, Q("37.094279 mm")))
sketch1.addConstraint(Sketcher.Constraint("DistanceX", 29, 1, 29, 2, Q("25.643234 mm")))
sketch1.addConstraint(Sketcher.Constraint("DistanceY", 0, 2, 0, 1, Q("8.947387 mm")))
sketch1.addConstraint(Sketcher.Constraint("DistanceY", 12, 2, 12, 1, Q("8.952613 mm")))
sketch1.addConstraint(Sketcher.Constraint("DistanceY", 31, 1, 31, 2, Q("10.555205 mm")))
sketch1.addConstraint(Sketcher.Constraint("DistanceX", -1, 1, 33, 3, Q("316.717741 mm")))
sketch1.addConstraint(Sketcher.Constraint("DistanceX", -1, 1, 35, 3, Q("268.536959 mm")))
sketch1.addConstraint(Sketcher.Constraint("DistanceX", -1, 1, 57, 3, Q("320.545629 mm")))
sketch1.addConstraint(Sketcher.Constraint("DistanceX", -1, 1, 0, 2, Q("298.545629 mm")))
sketch1.addConstraint(Sketcher.Constraint("DistanceY", 0, 2, -1, 1, Q("92.841779 mm")))
sketch1.addConstraint(Sketcher.Constraint("DistanceY", 59, 2, -1, 1, Q("106.396108 mm")))
sketch1.addConstraint(Sketcher.Constraint("DistanceX", -1, 1, 65, 2, Q("318.527528 mm")))
sketch1.addConstraint(Sketcher.Constraint("DistanceY", 66, 2, -1, 1, Q("52.015831 mm")))
sketch1.addConstraint(Sketcher.Constraint("DistanceY", 67, 2, -1, 1, Q("29.165661 mm")))
sketch1.addConstraint(Sketcher.Constraint("DistanceX", -1, 1, 68, 2, Q("285.781282 mm")))
sketch1.addConstraint(Sketcher.Constraint("Distance", 36, Q("35.978513 mm")))
sketch1.addConstraint(Sketcher.Constraint("Distance", 58, Q("32.581138 mm")))
sketch1.addConstraint(Sketcher.Constraint("Distance", 59, Q("44.832955 mm")))
sketch1.addConstraint(Sketcher.Constraint("Distance", 60, Q("49.404944 mm")))
sketch1.addConstraint(Sketcher.Constraint("Distance", 66, Q("66.331994 mm")))
sketch1.addConstraint(Sketcher.Constraint("DistanceY", 57, 3, -1, 1, Q("134.447004 mm")))
sketch1.addConstraint(Sketcher.Constraint("DistanceX", -1, 1, 61, 3, Q("370.358604 mm")))
sketch1.addConstraint(Sketcher.Constraint("DistanceY", 61, 3, -1, 1, Q("65.946984 mm")))
sketch1.addConstraint(Sketcher.Constraint("DistanceX", -1, 1, 62, 3, Q("313.936988 mm")))
sketch1.addConstraint(Sketcher.Constraint("DistanceY", 62, 3, -1, 1, Q("41.346984 mm")))
sketch1.addConstraint(Sketcher.Constraint("DistanceX", -1, 1, 58, 2, Q("354.947285 mm")))
sketch1.addConstraint(Sketcher.Constraint("DistanceY", 58, 2, -1, 1, Q("70.136766 mm")))
pad1 = body.newObject("PartDesign::Pad", "Pad")
pad1.Profile = sketch1
pad1.Length = 3
doc.recompute()

fillet = body.newObject("PartDesign::Fillet", "Fillet")
fillet.Base = (pad1, edges_at(pad1, [
    (354.947, -52.016, 1.5),
    (318.528, 3.424, 1.5),
    (285.781, -5.015, 1.5),
    (313.937, -29.166, 1.5),
    (354.947, -70.137, 1.5),
    (325.081, -57.115, 1.5),
    (328.58, -106.396, 1.5),
]))
fillet.Radius = 2
doc.recompute()

fillet2 = body.newObject("PartDesign::Fillet", "Fillet001")
fillet2.Base = (fillet, edges_at(fillet, [
    (293.546, -83.894, 1.5),
    (293.546, -75.894, 1.5),
    (293.546, -53.889, 1.5),
    (293.546, -45.889, 1.5),
    (293.546, -113.894, 1.5),
    (293.546, -105.894, 1.5),
]))
fillet2.Radius = 1.3

doc.recompute()
